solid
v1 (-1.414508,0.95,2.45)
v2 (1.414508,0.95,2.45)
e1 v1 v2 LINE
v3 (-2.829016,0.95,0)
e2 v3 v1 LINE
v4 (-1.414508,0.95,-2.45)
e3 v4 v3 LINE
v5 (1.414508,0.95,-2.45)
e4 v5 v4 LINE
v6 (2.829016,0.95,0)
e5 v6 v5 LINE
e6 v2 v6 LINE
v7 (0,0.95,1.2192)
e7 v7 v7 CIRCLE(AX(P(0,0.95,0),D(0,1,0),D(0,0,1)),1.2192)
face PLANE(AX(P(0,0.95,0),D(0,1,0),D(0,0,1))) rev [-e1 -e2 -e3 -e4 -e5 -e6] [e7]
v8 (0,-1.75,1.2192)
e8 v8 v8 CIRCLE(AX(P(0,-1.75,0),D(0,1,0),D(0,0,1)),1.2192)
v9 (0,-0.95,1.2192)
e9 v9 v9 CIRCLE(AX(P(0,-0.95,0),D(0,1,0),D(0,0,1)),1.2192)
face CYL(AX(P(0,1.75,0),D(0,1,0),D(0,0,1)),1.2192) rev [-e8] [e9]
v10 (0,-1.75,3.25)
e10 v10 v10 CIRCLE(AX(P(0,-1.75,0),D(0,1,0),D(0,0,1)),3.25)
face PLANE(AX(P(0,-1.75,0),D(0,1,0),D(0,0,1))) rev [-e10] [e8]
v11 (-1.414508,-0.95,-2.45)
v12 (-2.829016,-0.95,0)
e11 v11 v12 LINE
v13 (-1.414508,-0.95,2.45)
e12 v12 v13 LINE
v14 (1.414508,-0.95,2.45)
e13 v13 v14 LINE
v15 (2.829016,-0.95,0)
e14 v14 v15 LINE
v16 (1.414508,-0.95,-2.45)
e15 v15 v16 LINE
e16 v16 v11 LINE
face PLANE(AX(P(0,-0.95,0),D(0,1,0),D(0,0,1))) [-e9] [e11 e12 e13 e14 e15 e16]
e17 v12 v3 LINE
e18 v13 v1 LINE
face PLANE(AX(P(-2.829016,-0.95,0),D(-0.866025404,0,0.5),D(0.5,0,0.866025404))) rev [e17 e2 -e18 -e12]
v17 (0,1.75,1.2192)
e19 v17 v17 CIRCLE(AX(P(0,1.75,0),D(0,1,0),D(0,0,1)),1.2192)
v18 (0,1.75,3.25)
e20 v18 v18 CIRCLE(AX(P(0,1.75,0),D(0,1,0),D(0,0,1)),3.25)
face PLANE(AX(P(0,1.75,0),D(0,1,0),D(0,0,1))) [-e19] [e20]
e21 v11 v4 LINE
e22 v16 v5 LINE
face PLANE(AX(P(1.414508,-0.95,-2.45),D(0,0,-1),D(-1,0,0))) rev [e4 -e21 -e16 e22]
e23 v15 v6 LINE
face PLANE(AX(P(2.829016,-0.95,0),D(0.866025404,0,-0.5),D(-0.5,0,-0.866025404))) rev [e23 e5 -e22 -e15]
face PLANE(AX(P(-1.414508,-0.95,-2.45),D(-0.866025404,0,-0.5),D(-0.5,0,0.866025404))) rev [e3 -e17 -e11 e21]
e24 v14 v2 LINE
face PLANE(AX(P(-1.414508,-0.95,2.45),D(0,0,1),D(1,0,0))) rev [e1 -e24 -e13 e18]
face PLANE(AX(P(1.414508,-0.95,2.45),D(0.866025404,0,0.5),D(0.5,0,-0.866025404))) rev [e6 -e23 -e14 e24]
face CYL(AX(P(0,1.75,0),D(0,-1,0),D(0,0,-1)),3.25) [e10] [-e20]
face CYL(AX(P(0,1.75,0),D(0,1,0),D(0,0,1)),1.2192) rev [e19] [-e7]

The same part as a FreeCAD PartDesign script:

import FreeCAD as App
import Part
import Sketcher
Q = App.Units.Quantity


def add_polygon(sketch, points):
    """Adds a closed chain of lines whose ends are joined by coincident constraints."""
    first, n = sketch.GeometryCount, len(points)
    for a, b in zip(points, points[1:] + points[:1]):
        sketch.addGeometry(Part.LineSegment(App.Vector(*a, 0), App.Vector(*b, 0)), False)
    for i in range(n):
        sketch.addConstraint(Sketcher.Constraint("Coincident", first + i, 2, first + (i + 1) % n, 1))

doc = App.newDocument("Part")
body = doc.addObject("PartDesign::Body", "Body")

# Sketch on XZ plane
sketch1 = body.newObject("Sketcher::SketchObject", "Sketch")
sketch1.AttachmentSupport = (doc.getObject("XZ_Plane"), [""])
sketch1.MapMode = "FlatFace"
sketch1.addGeometry(Part.Circle(App.Vector(0, 0, 0), App.Vector(0, 0, 1), 3.25), False)
sketch1.addConstraint([
    Sketcher.Constraint("Coincident", 0, 3, -1, 1),
    Sketcher.Constraint("Diameter", 0, 6.5),
])
pad1 = body.newObject("PartDesign::Pad", "Pad")
pad1.Profile = sketch1
pad1.Length = 3.5
pad1.Midplane = True

# Sketch on XZ plane
sketch2 = body.newObject("Sketcher::SketchObject", "Sketch001")
sketch2.AttachmentSupport = (doc.getObject("XZ_Plane"), [""])
sketch2.MapMode = "FlatFace"
add_polygon(sketch2, [(2.829016, 0), (1.414508, -2.45), (-1.414508, -2.45), (-2.829016, 0), (-1.414508, 2.45), (1.414508, 2.45)])  # lines 0-5
sketch2.addConstraint([
    Sketcher.Constraint("Horizontal", 1),
    Sketcher.Constraint("Horizontal", 4),
    Sketcher.Constraint("Symmetric", 0, 2, 3, 2, -1, 1),
    Sketcher.Constraint("Symmetric", 2, 2, 5, 2, -1, 1),
    Sketcher.Constraint("PointOnObject", 2, 2, -1),
    Sketcher.Constraint("Parallel", 2, 5),
    Sketcher.Constraint("Vertical", 1, 2, 3, 2),
    Sketcher.Constraint("Angle", 0, Q("-120 deg")),
    Sketcher.Constraint("DistanceY", 1, 2, 3, 2, 4.9),
    Sketcher.Constraint("DistanceX", 1, 2, 1, 1, 2.829016),
])
pocket1 = body.newObject("PartDesign::Pocket", "Pocket")
pocket1.Profile = sketch2
pocket1.Length = 1.9
pocket1.Midplane = True

# Sketch on XZ plane
sketch3 = body.newObject("Sketcher::SketchObject", "Sketch002")
sketch3.AttachmentSupport = (doc.getObject("XZ_Plane"), [""])
sketch3.MapMode = "FlatFace"
sketch3.AttachmentOffset = App.Placement(App.Vector(0, 0, -1.75), App.Rotation())
sketch3.addGeometry(Part.Circle(App.Vector(0, 0, 0), App.Vector(0, 0, 1), 1.2192), False)
sketch3.addConstraint([
    Sketcher.Constraint("Coincident", 0, 3, -1, 1),
    Sketcher.Constraint("Diameter", 0, 2.4384),
])
doc.recompute()
hole = body.newObject("PartDesign::Hole", "Hole")
hole.Profile = sketch3
hole.ThreadType = "None"
hole.Diameter = 2.4384
hole.DepthType = "ThroughAll"
hole.Reversed = True

doc.recompute()
